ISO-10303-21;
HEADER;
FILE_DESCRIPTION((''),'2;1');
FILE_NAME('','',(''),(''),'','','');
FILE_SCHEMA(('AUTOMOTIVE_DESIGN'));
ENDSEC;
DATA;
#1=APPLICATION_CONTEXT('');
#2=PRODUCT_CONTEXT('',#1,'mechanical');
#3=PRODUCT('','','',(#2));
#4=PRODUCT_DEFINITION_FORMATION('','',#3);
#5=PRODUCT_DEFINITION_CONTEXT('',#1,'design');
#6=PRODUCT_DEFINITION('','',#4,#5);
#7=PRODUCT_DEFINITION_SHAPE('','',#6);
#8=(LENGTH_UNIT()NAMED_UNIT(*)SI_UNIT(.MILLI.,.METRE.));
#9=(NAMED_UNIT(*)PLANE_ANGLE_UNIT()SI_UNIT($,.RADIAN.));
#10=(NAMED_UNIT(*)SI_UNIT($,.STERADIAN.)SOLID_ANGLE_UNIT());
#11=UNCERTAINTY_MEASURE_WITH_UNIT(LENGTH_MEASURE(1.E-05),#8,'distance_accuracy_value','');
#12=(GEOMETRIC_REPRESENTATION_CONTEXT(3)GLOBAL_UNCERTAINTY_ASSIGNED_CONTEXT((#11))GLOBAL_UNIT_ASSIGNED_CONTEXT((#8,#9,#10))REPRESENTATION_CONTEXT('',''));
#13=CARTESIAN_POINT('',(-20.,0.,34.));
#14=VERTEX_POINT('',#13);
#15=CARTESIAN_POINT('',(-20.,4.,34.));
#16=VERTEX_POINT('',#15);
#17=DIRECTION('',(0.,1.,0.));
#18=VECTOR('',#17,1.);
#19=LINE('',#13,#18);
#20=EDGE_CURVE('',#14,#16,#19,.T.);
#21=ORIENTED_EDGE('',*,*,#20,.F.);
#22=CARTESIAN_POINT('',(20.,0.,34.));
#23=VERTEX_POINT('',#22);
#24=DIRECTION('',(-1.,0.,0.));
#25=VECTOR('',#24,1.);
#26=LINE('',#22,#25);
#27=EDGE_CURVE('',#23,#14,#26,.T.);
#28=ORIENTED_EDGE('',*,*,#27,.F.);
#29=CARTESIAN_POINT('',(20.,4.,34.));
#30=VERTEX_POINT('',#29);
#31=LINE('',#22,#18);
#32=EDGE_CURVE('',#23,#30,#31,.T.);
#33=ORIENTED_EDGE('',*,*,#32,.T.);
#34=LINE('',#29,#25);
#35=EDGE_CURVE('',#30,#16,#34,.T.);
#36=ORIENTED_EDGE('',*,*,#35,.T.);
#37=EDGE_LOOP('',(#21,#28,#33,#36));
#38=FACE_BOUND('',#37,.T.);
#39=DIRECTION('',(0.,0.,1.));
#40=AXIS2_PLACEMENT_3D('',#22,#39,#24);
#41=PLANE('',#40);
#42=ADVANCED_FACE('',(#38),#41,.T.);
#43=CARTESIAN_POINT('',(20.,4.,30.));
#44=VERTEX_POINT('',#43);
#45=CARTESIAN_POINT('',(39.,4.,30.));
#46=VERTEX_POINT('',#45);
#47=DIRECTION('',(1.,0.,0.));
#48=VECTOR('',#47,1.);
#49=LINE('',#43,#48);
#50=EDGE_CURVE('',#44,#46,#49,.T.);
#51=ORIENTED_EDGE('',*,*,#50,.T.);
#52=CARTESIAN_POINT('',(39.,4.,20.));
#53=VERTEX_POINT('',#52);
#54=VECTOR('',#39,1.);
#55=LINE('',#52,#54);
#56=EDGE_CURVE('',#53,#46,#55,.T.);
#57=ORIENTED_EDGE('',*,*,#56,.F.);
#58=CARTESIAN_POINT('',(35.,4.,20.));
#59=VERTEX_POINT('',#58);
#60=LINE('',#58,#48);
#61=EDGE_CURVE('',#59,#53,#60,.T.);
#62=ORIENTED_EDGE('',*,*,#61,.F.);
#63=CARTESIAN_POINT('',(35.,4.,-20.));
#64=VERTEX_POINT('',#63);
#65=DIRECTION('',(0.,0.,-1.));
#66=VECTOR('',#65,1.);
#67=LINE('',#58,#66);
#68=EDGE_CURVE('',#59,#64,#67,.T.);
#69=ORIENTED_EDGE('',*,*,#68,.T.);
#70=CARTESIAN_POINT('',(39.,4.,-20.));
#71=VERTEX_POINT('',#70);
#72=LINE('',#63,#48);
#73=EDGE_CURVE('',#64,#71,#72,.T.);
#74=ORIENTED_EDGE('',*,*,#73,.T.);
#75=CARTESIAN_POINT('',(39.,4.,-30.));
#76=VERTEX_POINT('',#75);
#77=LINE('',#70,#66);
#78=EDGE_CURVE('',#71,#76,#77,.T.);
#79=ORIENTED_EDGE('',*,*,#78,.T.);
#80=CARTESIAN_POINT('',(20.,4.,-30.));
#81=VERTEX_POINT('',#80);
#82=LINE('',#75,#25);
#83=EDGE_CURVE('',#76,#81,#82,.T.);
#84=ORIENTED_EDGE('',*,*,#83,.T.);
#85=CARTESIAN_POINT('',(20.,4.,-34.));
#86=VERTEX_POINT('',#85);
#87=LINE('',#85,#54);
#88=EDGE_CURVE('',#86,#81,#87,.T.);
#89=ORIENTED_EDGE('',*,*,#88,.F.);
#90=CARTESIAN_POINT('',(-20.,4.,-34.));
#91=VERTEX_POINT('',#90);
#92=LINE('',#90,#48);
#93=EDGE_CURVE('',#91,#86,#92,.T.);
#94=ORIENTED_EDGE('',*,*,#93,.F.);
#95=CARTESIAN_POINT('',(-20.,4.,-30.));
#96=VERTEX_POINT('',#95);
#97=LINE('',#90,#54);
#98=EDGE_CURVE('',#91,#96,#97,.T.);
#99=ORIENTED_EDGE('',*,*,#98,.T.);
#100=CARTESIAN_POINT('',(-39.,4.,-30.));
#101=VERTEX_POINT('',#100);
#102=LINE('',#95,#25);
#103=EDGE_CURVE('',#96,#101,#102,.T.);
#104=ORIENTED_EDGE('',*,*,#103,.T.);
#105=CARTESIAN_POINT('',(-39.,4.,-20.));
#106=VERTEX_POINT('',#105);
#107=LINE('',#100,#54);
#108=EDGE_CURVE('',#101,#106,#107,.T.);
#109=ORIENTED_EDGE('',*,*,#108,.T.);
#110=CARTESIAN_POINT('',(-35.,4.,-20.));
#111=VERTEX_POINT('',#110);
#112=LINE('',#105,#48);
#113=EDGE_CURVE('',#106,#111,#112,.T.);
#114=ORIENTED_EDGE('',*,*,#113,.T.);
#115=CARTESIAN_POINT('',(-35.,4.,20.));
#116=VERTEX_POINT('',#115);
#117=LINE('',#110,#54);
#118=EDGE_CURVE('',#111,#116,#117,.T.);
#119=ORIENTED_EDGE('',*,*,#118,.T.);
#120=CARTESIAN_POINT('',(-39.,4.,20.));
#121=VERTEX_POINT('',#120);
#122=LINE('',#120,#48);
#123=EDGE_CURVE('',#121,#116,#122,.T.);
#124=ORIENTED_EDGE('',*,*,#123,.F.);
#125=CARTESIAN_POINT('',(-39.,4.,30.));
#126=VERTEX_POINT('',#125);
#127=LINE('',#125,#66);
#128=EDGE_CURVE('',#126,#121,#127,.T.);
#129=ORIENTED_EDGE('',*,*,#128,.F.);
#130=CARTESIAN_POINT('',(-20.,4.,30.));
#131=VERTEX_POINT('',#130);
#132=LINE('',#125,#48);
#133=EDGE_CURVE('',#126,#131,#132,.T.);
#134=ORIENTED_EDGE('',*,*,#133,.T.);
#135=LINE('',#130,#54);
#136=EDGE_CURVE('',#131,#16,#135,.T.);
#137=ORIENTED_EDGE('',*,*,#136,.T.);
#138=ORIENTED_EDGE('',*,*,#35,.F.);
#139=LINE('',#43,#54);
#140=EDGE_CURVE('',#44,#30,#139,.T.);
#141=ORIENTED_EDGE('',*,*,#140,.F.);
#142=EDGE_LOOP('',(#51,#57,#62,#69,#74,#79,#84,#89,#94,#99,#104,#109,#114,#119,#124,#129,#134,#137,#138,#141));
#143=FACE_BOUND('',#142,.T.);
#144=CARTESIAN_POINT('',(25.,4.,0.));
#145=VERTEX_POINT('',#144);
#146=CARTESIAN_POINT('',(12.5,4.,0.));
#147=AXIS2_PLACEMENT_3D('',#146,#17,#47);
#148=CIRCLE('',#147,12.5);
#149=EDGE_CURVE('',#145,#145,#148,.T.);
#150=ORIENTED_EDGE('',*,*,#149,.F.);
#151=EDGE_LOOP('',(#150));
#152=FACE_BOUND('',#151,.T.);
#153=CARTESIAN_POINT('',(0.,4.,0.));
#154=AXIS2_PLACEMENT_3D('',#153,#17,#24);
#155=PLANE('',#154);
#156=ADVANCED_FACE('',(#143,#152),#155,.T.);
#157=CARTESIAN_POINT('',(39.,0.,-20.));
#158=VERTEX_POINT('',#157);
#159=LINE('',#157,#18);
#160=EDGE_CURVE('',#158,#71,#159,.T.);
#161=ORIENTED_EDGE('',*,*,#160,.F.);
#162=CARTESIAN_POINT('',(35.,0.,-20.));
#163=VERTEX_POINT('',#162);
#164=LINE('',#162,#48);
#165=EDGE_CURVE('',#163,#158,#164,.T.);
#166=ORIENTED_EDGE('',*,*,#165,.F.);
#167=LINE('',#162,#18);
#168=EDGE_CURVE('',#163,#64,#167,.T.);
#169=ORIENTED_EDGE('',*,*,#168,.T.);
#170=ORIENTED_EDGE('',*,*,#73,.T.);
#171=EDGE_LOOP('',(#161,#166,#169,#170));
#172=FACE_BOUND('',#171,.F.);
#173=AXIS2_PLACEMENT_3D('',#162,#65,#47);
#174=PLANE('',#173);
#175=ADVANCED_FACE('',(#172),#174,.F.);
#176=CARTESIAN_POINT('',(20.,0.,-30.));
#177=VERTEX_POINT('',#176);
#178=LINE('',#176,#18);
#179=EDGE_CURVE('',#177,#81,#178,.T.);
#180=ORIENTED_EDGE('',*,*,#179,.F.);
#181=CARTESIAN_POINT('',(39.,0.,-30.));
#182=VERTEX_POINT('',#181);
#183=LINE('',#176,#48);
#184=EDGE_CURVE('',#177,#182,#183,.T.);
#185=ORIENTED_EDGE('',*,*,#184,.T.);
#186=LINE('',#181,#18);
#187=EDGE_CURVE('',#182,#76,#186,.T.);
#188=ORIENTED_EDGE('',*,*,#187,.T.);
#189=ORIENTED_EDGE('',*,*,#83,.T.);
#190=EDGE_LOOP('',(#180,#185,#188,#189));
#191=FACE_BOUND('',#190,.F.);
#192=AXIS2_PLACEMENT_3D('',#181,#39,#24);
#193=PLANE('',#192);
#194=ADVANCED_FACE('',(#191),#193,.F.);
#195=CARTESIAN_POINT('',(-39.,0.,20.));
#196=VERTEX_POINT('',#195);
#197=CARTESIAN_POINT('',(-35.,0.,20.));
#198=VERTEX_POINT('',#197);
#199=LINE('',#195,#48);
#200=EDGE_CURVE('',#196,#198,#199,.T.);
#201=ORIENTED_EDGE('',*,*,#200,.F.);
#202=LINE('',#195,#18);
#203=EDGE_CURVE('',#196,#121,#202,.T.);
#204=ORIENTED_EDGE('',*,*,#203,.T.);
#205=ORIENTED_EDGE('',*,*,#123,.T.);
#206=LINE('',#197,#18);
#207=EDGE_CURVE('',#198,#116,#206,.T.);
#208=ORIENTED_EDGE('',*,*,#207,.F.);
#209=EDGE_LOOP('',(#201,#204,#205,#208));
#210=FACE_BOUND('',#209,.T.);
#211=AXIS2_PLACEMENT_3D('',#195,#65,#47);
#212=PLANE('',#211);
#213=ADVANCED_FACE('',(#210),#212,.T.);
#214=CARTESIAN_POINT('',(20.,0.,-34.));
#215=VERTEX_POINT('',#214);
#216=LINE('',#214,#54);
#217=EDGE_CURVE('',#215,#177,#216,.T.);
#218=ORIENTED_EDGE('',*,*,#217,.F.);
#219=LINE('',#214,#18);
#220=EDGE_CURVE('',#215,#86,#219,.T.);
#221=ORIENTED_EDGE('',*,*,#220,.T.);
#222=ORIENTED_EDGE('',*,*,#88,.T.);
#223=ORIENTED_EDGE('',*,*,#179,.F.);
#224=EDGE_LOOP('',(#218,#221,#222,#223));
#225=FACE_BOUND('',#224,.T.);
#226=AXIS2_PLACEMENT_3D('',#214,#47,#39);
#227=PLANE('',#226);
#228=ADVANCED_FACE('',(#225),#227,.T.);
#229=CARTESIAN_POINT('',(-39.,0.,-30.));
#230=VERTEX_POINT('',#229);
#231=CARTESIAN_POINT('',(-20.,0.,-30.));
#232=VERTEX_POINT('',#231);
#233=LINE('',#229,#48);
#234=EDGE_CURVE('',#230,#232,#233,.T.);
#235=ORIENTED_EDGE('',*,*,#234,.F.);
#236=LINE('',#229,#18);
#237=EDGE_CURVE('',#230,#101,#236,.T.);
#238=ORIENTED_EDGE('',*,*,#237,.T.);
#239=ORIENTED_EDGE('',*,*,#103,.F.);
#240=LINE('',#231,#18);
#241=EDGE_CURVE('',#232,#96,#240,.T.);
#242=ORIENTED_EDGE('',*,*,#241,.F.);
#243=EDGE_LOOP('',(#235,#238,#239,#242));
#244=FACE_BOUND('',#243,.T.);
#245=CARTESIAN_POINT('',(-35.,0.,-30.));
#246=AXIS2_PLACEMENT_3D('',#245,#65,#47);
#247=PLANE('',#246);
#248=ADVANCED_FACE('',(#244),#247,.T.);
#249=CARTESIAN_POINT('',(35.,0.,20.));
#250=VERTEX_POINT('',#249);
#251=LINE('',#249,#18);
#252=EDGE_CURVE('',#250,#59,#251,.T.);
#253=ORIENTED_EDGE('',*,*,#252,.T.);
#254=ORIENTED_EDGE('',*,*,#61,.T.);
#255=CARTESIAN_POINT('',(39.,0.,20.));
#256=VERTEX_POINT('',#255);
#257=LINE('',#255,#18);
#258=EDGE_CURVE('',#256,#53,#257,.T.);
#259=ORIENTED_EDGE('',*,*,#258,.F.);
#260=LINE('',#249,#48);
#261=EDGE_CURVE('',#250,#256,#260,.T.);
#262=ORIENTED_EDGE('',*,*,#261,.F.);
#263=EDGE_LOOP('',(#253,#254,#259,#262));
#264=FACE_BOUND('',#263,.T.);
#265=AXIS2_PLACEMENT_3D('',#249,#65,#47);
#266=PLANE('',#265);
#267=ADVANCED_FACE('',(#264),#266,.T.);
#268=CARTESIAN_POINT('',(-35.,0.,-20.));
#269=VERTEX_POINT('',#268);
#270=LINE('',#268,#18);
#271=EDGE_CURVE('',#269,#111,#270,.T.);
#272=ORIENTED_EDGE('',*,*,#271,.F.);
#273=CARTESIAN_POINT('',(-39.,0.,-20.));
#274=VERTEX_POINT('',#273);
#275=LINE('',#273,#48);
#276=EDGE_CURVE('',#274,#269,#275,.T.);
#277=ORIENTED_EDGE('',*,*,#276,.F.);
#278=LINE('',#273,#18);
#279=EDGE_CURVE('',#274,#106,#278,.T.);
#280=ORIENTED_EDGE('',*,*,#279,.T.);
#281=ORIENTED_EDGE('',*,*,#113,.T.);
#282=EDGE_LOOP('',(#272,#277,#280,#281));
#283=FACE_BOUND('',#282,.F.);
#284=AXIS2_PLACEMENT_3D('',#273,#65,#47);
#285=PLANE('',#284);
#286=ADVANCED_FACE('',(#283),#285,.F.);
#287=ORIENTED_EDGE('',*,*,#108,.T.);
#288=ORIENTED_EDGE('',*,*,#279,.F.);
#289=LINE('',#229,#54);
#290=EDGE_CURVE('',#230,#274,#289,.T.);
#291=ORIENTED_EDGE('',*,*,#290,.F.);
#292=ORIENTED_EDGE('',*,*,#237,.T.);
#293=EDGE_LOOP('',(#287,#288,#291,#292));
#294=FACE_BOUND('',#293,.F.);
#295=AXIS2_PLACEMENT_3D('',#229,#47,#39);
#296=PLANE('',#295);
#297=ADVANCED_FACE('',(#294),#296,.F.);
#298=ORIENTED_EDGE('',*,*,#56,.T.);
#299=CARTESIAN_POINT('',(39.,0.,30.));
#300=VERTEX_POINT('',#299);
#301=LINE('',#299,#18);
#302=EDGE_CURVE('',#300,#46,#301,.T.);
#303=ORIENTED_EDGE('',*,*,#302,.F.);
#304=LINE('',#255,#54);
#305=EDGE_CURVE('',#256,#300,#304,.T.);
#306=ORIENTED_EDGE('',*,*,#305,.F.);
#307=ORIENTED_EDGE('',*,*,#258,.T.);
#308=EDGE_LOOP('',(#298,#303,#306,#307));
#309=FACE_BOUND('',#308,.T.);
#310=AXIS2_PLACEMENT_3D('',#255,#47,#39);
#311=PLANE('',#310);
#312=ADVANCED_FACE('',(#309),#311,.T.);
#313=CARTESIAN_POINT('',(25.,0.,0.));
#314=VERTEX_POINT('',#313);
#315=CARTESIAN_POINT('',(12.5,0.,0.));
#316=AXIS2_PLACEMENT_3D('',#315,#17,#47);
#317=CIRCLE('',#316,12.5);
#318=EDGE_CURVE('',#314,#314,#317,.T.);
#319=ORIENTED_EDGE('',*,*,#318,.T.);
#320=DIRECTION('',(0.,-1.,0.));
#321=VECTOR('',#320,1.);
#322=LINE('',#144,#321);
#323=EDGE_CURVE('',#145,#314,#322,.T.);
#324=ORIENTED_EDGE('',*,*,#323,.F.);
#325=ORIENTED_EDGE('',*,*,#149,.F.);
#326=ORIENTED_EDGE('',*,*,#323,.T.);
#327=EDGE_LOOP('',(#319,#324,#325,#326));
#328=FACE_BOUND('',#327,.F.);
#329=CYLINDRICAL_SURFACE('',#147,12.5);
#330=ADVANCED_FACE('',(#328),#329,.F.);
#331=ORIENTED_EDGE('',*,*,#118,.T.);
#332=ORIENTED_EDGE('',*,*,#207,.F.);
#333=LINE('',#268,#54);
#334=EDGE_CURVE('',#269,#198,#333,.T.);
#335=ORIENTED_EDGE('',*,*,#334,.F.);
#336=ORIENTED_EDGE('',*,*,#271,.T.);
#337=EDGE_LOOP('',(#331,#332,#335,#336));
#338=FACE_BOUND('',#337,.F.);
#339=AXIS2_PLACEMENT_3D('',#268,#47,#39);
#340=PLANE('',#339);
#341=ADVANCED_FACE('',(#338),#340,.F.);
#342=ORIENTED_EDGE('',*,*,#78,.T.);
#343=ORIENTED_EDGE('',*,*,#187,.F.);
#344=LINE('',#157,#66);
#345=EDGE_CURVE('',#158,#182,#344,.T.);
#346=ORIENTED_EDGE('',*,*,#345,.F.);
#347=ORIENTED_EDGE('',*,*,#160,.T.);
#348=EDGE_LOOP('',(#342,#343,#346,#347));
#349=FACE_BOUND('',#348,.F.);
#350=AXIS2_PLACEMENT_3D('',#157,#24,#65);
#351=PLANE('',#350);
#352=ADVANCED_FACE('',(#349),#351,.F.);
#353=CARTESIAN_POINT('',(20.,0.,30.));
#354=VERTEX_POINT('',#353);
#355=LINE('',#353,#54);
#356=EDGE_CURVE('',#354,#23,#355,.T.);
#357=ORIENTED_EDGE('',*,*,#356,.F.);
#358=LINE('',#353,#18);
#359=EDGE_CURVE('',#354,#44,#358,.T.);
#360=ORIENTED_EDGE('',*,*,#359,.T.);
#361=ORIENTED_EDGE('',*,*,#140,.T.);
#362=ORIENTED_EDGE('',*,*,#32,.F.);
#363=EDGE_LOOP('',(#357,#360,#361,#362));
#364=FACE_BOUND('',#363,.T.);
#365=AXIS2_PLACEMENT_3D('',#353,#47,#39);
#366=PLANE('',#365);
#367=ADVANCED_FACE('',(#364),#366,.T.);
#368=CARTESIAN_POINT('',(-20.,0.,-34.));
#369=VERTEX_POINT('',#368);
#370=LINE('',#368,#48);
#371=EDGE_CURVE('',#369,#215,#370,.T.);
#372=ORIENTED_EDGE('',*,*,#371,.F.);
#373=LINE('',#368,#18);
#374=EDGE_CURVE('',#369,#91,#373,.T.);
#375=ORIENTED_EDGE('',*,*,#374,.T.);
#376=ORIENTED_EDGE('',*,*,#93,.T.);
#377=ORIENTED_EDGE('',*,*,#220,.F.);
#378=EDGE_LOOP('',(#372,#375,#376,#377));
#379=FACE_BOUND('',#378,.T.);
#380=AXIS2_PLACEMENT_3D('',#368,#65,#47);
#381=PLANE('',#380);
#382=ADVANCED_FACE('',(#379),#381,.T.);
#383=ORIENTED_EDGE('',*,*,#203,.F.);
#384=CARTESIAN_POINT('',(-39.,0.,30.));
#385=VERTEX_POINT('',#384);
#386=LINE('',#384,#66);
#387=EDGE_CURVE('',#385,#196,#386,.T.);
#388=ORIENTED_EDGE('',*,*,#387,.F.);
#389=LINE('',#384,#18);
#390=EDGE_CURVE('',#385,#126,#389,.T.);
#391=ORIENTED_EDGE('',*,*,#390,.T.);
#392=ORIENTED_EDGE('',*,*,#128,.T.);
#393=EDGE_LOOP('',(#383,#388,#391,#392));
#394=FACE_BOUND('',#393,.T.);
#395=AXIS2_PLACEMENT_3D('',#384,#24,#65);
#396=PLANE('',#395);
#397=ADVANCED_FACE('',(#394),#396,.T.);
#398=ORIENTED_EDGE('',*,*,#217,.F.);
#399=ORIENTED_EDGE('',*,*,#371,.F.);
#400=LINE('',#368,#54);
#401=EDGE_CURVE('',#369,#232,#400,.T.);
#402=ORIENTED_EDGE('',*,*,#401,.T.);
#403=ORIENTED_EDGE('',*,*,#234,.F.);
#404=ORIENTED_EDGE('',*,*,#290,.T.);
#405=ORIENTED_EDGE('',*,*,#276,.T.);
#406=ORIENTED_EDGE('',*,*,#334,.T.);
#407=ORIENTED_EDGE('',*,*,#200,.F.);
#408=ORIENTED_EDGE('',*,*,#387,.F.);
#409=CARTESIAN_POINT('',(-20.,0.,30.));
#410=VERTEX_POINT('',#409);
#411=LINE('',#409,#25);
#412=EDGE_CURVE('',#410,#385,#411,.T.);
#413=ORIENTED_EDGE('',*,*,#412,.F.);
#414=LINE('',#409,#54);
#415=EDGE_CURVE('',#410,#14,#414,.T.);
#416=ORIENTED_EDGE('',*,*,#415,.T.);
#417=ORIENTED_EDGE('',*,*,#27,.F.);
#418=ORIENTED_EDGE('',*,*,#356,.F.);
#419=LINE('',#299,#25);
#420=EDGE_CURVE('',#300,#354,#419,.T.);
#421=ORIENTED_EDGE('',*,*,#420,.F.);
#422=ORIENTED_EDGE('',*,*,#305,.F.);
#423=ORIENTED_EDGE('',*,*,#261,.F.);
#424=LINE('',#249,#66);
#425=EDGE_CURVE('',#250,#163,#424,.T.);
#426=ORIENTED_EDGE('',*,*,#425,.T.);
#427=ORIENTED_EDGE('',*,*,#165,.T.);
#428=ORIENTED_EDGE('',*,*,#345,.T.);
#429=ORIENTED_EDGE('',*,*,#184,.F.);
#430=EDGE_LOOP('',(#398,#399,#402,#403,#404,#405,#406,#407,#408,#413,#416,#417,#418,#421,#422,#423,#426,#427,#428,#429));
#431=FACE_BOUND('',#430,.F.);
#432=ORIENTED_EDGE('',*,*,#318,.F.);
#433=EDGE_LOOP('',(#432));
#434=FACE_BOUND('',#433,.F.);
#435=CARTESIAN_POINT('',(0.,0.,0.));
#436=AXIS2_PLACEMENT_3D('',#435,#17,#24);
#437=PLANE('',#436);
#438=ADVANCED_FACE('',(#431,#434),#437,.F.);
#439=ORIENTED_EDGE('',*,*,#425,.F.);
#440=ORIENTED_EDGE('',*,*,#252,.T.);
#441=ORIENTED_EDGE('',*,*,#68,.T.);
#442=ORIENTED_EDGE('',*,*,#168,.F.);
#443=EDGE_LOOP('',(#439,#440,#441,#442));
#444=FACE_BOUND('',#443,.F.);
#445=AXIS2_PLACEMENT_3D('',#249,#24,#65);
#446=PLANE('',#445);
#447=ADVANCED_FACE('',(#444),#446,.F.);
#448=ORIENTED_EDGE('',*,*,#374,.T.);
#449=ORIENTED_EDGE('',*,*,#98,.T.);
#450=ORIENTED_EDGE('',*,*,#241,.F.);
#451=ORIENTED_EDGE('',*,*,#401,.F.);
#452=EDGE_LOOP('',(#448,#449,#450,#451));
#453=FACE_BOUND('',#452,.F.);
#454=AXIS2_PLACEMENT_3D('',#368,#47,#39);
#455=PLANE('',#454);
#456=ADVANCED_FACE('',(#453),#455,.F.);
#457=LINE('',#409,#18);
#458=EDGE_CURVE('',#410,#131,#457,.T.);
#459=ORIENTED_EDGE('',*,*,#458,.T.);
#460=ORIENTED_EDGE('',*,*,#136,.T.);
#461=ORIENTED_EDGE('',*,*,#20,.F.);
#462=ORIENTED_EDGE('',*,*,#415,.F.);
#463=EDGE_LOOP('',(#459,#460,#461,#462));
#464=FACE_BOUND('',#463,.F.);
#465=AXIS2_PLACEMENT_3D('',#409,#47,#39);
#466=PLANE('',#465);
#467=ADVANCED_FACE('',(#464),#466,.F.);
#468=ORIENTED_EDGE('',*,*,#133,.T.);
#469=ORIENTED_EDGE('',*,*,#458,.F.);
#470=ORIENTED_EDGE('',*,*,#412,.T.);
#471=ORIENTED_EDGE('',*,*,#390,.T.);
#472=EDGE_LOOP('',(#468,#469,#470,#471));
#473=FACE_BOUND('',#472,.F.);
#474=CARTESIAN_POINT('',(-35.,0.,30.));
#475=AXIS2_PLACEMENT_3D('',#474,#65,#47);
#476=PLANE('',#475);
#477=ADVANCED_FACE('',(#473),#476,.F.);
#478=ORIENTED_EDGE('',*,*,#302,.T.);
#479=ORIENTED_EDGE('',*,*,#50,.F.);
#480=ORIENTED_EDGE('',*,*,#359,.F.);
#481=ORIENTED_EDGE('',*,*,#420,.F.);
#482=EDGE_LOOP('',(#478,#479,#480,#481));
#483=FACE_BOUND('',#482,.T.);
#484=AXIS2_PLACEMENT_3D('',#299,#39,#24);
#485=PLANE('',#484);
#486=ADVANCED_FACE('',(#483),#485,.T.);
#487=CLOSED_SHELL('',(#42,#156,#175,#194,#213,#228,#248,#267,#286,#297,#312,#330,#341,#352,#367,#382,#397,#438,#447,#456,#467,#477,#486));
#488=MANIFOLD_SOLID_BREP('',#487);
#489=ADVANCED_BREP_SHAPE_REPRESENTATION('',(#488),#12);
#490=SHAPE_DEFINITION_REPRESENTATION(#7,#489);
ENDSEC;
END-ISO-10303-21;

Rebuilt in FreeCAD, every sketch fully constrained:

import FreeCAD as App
import Part
import Sketcher


def add_polygon(sketch, points):
    """Adds a closed chain of lines whose ends are joined by coincident constraints."""
    first, n = sketch.GeometryCount, len(points)
    for a, b in zip(points, points[1:] + points[:1]):
        sketch.addGeometry(Part.LineSegment(App.Vector(*a, 0), App.Vector(*b, 0)), False)
    for i in range(n):
        sketch.addConstraint(Sketcher.Constraint("Coincident", first + i, 2, first + (i + 1) % n, 1))

doc = App.newDocument("Part")
body = doc.addObject("PartDesign::Body", "Body")

# Sketch on XZ plane
sketch1 = body.newObject("Sketcher::SketchObject", "Sketch")
sketch1.AttachmentSupport = (doc.getObject("XZ_Plane"), [""])
sketch1.MapMode = "FlatFace"
add_polygon(sketch1, [(35, 20), (35, -20), (39, -20), (39, -30), (20, -30), (20, -34), (-20, -34), (-20, -30), (-39, -30), (-39, -20), (-35, -20), (-35, 20), (-39, 20), (-39, 30), (-20, 30), (-20, 34), (20, 34), (20, 30), (39, 30), (39, 20)])  # lines 0-19
sketch1.addConstraint([
    Sketcher.Constraint("Vertical", 0),
    Sketcher.Constraint("Horizontal", 1),
    Sketcher.Constraint("Vertical", 2),
    Sketcher.Constraint("Horizontal", 3),
    Sketcher.Constraint("Vertical", 4),
    Sketcher.Constraint("Horizontal", 5),
    Sketcher.Constraint("Vertical", 6),
    Sketcher.Constraint("Horizontal", 7),
    Sketcher.Constraint("Vertical", 8),
    Sketcher.Constraint("Horizontal", 9),
    Sketcher.Constraint("Vertical", 10),
    Sketcher.Constraint("Horizontal", 11),
    Sketcher.Constraint("Vertical", 12),
    Sketcher.Constraint("Horizontal", 13),
    Sketcher.Constraint("Vertical", 14),
    Sketcher.Constraint("Horizontal", 15),
    Sketcher.Constraint("Vertical", 16),
    Sketcher.Constraint("Horizontal", 17),
    Sketcher.Constraint("Vertical", 18),
    Sketcher.Constraint("Horizontal", 19),
    Sketcher.Constraint("Symmetric", 0, 2, 10, 2, -1, 1),
    Sketcher.Constraint("Symmetric", 2, 2, 12, 2, -1, 1),
    Sketcher.Constraint("Symmetric", 4, 2, 14, 2, -1, 1),
    Sketcher.Constraint("Symmetric", 6, 2, 16, 2, -1, 1),
    Sketcher.Constraint("Symmetric", 8, 2, 18, 2, -1, 1),
    Sketcher.Constraint("Symmetric", 3, 2, 6, 2, -2),
    Sketcher.Constraint("Symmetric", 1, 2, 8, 2, -2),
    Sketcher.Constraint("Equal", 15, 0),
    Sketcher.Constraint("Equal", 19, 4),
    Sketcher.Constraint("DistanceX", 1, 1, 1, 2, 4.0),
    Sketcher.Constraint("DistanceX", 5, 2, 5, 1, 40.0),
    Sketcher.Constraint("DistanceY", 7, 2, 12, 2, 60.0),
    Sketcher.Constraint("DistanceX", 3, 2, 3, 1, 19.0),
])
pad1 = body.newObject("PartDesign::Pad", "Pad")
pad1.Profile = sketch1
pad1.Length = 4
pad1.Reversed = True

# Sketch on XZ plane
sketch2 = body.newObject("Sketcher::SketchObject", "Sketch001")
sketch2.AttachmentSupport = (doc.getObject("XZ_Plane"), [""])
sketch2.MapMode = "FlatFace"
sketch2.AttachmentOffset = App.Placement(App.Vector(0, 0, -4), App.Rotation())
sketch2.addGeometry(Part.Circle(App.Vector(12.5, 0, 0), App.Vector(0, 0, 1), 12.5), False)
sketch2.addConstraint([
    Sketcher.Constraint("PointOnObject", 0, 3, -1),
    Sketcher.Constraint("Diameter", 0, 25.0),
    Sketcher.Constraint("DistanceX", -1, 1, 0, 3, 12.5),
])
pocket1 = body.newObject("PartDesign::Pocket", "Pocket")
pocket1.Profile = sketch2
pocket1.Length = 4
pocket1.Reversed = True

doc.recompute()
